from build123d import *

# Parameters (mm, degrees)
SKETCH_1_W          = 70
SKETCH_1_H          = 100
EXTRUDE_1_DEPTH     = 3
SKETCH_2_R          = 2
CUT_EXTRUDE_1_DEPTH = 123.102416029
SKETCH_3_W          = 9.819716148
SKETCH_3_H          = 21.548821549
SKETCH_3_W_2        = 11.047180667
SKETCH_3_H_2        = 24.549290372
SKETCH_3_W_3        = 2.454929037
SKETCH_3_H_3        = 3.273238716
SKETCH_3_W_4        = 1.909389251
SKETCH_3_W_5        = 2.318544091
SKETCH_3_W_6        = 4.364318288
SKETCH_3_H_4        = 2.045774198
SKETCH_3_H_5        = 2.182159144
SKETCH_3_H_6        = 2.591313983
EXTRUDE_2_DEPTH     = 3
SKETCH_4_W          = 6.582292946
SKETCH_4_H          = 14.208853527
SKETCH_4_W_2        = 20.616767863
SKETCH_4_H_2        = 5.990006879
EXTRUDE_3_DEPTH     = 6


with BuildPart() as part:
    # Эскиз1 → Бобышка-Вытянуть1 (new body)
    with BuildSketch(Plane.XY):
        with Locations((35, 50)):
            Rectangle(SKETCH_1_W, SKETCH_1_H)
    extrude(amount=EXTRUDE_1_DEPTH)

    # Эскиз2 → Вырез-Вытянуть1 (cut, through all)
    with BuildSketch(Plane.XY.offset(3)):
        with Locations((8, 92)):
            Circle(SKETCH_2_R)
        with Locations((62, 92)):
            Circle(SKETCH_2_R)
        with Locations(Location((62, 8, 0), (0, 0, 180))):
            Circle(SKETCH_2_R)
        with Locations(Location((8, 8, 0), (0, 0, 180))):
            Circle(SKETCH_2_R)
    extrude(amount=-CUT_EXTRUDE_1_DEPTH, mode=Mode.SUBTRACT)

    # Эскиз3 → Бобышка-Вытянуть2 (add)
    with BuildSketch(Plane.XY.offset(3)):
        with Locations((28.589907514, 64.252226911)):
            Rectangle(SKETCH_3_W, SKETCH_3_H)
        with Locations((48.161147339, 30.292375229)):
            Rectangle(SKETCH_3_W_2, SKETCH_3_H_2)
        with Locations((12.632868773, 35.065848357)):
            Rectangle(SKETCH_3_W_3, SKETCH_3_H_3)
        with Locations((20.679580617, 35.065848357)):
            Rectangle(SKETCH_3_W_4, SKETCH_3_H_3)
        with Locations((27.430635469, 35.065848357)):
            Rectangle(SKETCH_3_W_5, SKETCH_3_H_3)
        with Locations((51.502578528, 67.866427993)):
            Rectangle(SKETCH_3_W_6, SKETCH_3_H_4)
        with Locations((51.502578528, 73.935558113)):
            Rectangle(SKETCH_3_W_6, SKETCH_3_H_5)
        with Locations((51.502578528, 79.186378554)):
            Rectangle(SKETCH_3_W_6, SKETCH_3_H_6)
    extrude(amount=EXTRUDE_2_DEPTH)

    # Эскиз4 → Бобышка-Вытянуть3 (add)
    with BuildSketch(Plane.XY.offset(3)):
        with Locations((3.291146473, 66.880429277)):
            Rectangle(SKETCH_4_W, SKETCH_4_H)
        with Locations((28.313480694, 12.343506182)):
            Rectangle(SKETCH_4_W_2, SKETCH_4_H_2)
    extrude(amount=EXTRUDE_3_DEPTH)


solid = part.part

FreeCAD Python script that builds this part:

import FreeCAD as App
import Part
import Sketcher

doc = App.newDocument("Part")
body = doc.addObject("PartDesign::Body", "Body")

# Sketch on XY plane
sketch1 = doc.addObject("Sketcher::SketchObject", "Sketch")
body.addObject(sketch1)
sketch1.AttachmentSupport = (doc.XY_Plane, [""])
sketch1.MapMode = "FlatFace"
sketch1.addGeometry([
    Part.LineSegment(App.Vector(0, 100, 0), App.Vector(0, 0, 0)),
    Part.LineSegment(App.Vector(0, 0, 0), App.Vector(70, 0, 0)),
    Part.LineSegment(App.Vector(70, 0, 0), App.Vector(70, 100, 0)),
    Part.LineSegment(App.Vector(70, 100, 0), App.Vector(0, 100, 0)),
], False)
sketch1.addConstraint([
    Sketcher.Constraint("Coincident", 0, 2, 1, 1),
    Sketcher.Constraint("Coincident", 1, 2, 2, 1),
    Sketcher.Constraint("Coincident", 2, 2, 3, 1),
    Sketcher.Constraint("Coincident", 3, 2, 0, 1),
    Sketcher.Constraint("Vertical", 0),
    Sketcher.Constraint("Horizontal", 1),
    Sketcher.Constraint("Vertical", 2),
    Sketcher.Constraint("Horizontal", 3),
    Sketcher.Constraint("Coincident", 0, 2, -1, 1),
    Sketcher.Constraint("DistanceX", 1, 1, 1, 2, 70.0),
    Sketcher.Constraint("DistanceY", 0, 2, 0, 1, 100.0),
])
pad1 = doc.addObject("PartDesign::Pad", "Pad")
body.addObject(pad1)
pad1.Profile = sketch1
pad1.Length = 3

# Sketch on XY plane
sketch2 = doc.addObject("Sketcher::SketchObject", "Sketch001")
body.addObject(sketch2)
sketch2.AttachmentSupport = (doc.XY_Plane, [""])
sketch2.MapMode = "FlatFace"
sketch2.AttachmentOffset = App.Placement(App.Vector(0, 0, 3), App.Rotation())
sketch2.addGeometry([
    Part.Circle(App.Vector(8, 92, 0), App.Vector(0, 0, 1), 2),
    Part.Circle(App.Vector(62, 92, 0), App.Vector(0, 0, 1), 2),
    Part.Circle(App.Vector(62, 8, 0), App.Vector(0, 0, 1), 2),
    Part.Circle(App.Vector(8, 8, 0), App.Vector(0, 0, 1), 2),
], False)
sketch2.addConstraint([
    Sketcher.Constraint("Equal", 0, 1),
    Sketcher.Constraint("Equal", 1, 2),
    Sketcher.Constraint("Equal", 2, 3),
    Sketcher.Constraint("Horizontal", 0, 3, 1, 3),
    Sketcher.Constraint("Horizontal", 2, 3, 3, 3),
    Sketcher.Constraint("Vertical", 1, 3, 2, 3),
    Sketcher.Constraint("Vertical", 0, 3, 3, 3),
    Sketcher.Constraint("Diameter", 0, 4.0),
    Sketcher.Constraint("DistanceX", -1, 1, 0, 3, 8.0),
    Sketcher.Constraint("DistanceY", -1, 1, 0, 3, 92.0),
    Sketcher.Constraint("DistanceX", -1, 1, 1, 3, 62.0),
    Sketcher.Constraint("DistanceY", -1, 1, 2, 3, 8.0),
])
pocket1 = doc.addObject("PartDesign::Pocket", "Pocket")
body.addObject(pocket1)
pocket1.Profile = sketch2
pocket1.Type = "ThroughAll"

# Sketch on XY plane
sketch3 = doc.addObject("Sketcher::SketchObject", "Sketch002")
body.addObject(sketch3)
sketch3.AttachmentSupport = (doc.XY_Plane, [""])
sketch3.MapMode = "FlatFace"
sketch3.AttachmentOffset = App.Placement(App.Vector(0, 0, 3), App.Rotation())
sketch3.addGeometry([
    Part.LineSegment(App.Vector(23.7, 75, 0), App.Vector(23.7, 53.5, 0)),  # 0
    Part.LineSegment(App.Vector(23.7, 53.5, 0), App.Vector(33.5, 53.5, 0)),  # 1
    Part.LineSegment(App.Vector(33.5, 53.5, 0), App.Vector(33.5, 75, 0)),  # 2
    Part.LineSegment(App.Vector(33.5, 75, 0), App.Vector(23.7, 75, 0)),  # 3
    Part.LineSegment(App.Vector(42.6, 42.6, 0), App.Vector(42.6, 18, 0)),  # 4
    Part.LineSegment(App.Vector(42.6, 18, 0), App.Vector(53.7, 18, 0)),  # 5
    Part.LineSegment(App.Vector(53.7, 18, 0), App.Vector(53.7, 42.6, 0)),  # 6
    Part.LineSegment(App.Vector(53.7, 42.6, 0), App.Vector(42.6, 42.6, 0)),  # 7
    Part.LineSegment(App.Vector(11.4, 36.7, 0), App.Vector(11.4, 33.4, 0)),  # 8
    Part.LineSegment(App.Vector(11.4, 33.4, 0), App.Vector(13.9, 33.4, 0)),  # 9
    Part.LineSegment(App.Vector(13.9, 33.4, 0), App.Vector(13.9, 36.7, 0)),  # 10
    Part.LineSegment(App.Vector(13.9, 36.7, 0), App.Vector(11.4, 36.7, 0)),  # 11
    Part.LineSegment(App.Vector(19.7, 36.7, 0), App.Vector(19.7, 33.4, 0)),  # 12
    Part.LineSegment(App.Vector(19.7, 33.4, 0), App.Vector(21.6, 33.4, 0)),  # 13
    Part.LineSegment(App.Vector(21.6, 33.4, 0), App.Vector(21.6, 36.7, 0)),  # 14
    Part.LineSegment(App.Vector(21.6, 36.7, 0), App.Vector(19.7, 36.7, 0)),  # 15
    Part.LineSegment(App.Vector(26.3, 36.7, 0), App.Vector(26.3, 33.4, 0)),  # 16
    Part.LineSegment(App.Vector(26.3, 33.4, 0), App.Vector(28.6, 33.4, 0)),  # 17
    Part.LineSegment(App.Vector(28.6, 33.4, 0), App.Vector(28.6, 36.7, 0)),  # 18
    Part.LineSegment(App.Vector(28.6, 36.7, 0), App.Vector(26.3, 36.7, 0)),  # 19
    Part.LineSegment(App.Vector(49.3, 68.9, 0), App.Vector(49.3, 66.8, 0)),  # 20
    Part.LineSegment(App.Vector(49.3, 66.8, 0), App.Vector(53.7, 66.8, 0)),  # 21
    Part.LineSegment(App.Vector(53.7, 66.8, 0), App.Vector(53.7, 68.9, 0)),  # 22
    Part.LineSegment(App.Vector(53.7, 68.9, 0), App.Vector(49.3, 68.9, 0)),  # 23
    Part.LineSegment(App.Vector(49.3, 75, 0), App.Vector(49.3, 72.8, 0)),  # 24
    Part.LineSegment(App.Vector(49.3, 72.8, 0), App.Vector(53.7, 72.8, 0)),  # 25
    Part.LineSegment(App.Vector(53.7, 72.8, 0), App.Vector(53.7, 75, 0)),  # 26
    Part.LineSegment(App.Vector(53.7, 75, 0), App.Vector(49.3, 75, 0)),  # 27
    Part.LineSegment(App.Vector(49.3, 80.5, 0), App.Vector(49.3, 77.9, 0)),  # 28
    Part.LineSegment(App.Vector(49.3, 77.9, 0), App.Vector(53.7, 77.9, 0)),  # 29
    Part.LineSegment(App.Vector(53.7, 77.9, 0), App.Vector(53.7, 80.5, 0)),  # 30
    Part.LineSegment(App.Vector(53.7, 80.5, 0), App.Vector(49.3, 80.5, 0)),  # 31
], False)
sketch3.addConstraint([
    Sketcher.Constraint("Coincident", 0, 2, 1, 1),
    Sketcher.Constraint("Coincident", 1, 2, 2, 1),
    Sketcher.Constraint("Coincident", 2, 2, 3, 1),
    Sketcher.Constraint("Coincident", 3, 2, 0, 1),
    Sketcher.Constraint("Coincident", 4, 2, 5, 1),
    Sketcher.Constraint("Coincident", 5, 2, 6, 1),
    Sketcher.Constraint("Coincident", 6, 2, 7, 1),
    Sketcher.Constraint("Coincident", 7, 2, 4, 1),
    Sketcher.Constraint("Coincident", 8, 2, 9, 1),
    Sketcher.Constraint("Coincident", 9, 2, 10, 1),
    Sketcher.Constraint("Coincident", 10, 2, 11, 1),
    Sketcher.Constraint("Coincident", 11, 2, 8, 1),
    Sketcher.Constraint("Coincident", 12, 2, 13, 1),
    Sketcher.Constraint("Coincident", 13, 2, 14, 1),
    Sketcher.Constraint("Coincident", 14, 2, 15, 1),
    Sketcher.Constraint("Coincident", 15, 2, 12, 1),
    Sketcher.Constraint("Coincident", 16, 2, 17, 1),
    Sketcher.Constraint("Coincident", 17, 2, 18, 1),
    Sketcher.Constraint("Coincident", 18, 2, 19, 1),
    Sketcher.Constraint("Coincident", 19, 2, 16, 1),
    Sketcher.Constraint("Coincident", 20, 2, 21, 1),
    Sketcher.Constraint("Coincident", 21, 2, 22, 1),
    Sketcher.Constraint("Coincident", 22, 2, 23, 1),
    Sketcher.Constraint("Coincident", 23, 2, 20, 1),
    Sketcher.Constraint("Coincident", 24, 2, 25, 1),
    Sketcher.Constraint("Coincident", 25, 2, 26, 1),
    Sketcher.Constraint("Coincident", 26, 2, 27, 1),
    Sketcher.Constraint("Coincident", 27, 2, 24, 1),
    Sketcher.Constraint("Coincident", 28, 2, 29, 1),
    Sketcher.Constraint("Coincident", 29, 2, 30, 1),
    Sketcher.Constraint("Coincident", 30, 2, 31, 1),
    Sketcher.Constraint("Coincident", 31, 2, 28, 1),
    Sketcher.Constraint("Vertical", 0),
    Sketcher.Constraint("Horizontal", 1),
    Sketcher.Constraint("Vertical", 2),
    Sketcher.Constraint("Horizontal", 3),
    Sketcher.Constraint("Vertical", 4),
    Sketcher.Constraint("Horizontal", 5),
    Sketcher.Constraint("Vertical", 6),
    Sketcher.Constraint("Horizontal", 7),
    Sketcher.Constraint("Vertical", 8),
    Sketcher.Constraint("Horizontal", 9),
    Sketcher.Constraint("Vertical", 10),
    Sketcher.Constraint("Horizontal", 11),
    Sketcher.Constraint("Vertical", 12),
    Sketcher.Constraint("Horizontal", 13),
    Sketcher.Constraint("Vertical", 14),
    Sketcher.Constraint("Horizontal", 15),
    Sketcher.Constraint("Vertical", 16),
    Sketcher.Constraint("Horizontal", 17),
    Sketcher.Constraint("Vertical", 18),
    Sketcher.Constraint("Horizontal", 19),
    Sketcher.Constraint("Vertical", 20),
    Sketcher.Constraint("Horizontal", 21),
    Sketcher.Constraint("Vertical", 22),
    Sketcher.Constraint("Horizontal", 23),
    Sketcher.Constraint("Vertical", 24),
    Sketcher.Constraint("Horizontal", 25),
    Sketcher.Constraint("Vertical", 26),
    Sketcher.Constraint("Horizontal", 27),
    Sketcher.Constraint("Vertical", 28),
    Sketcher.Constraint("Horizontal", 29),
    Sketcher.Constraint("Vertical", 30),
    Sketcher.Constraint("Horizontal", 31),
    Sketcher.Constraint("Horizontal", 9, 2, 12, 2),
    Sketcher.Constraint("Horizontal", 11, 2, 14, 2),
    Sketcher.Constraint("Horizontal", 13, 2, 16, 2),
    Sketcher.Constraint("Horizontal", 15, 2, 18, 2),
    Sketcher.Constraint("Horizontal", 3, 2, 26, 2),
    Sketcher.Constraint("Vertical", 6, 2, 21, 2),
    Sketcher.Constraint("Vertical", 23, 2, 24, 2),
    Sketcher.Constraint("Vertical", 22, 2, 25, 2),
    Sketcher.Constraint("Vertical", 27, 2, 28, 2),
    Sketcher.Constraint("Vertical", 26, 2, 29, 2),
    Sketcher.Constraint("DistanceX", 5, 1, 5, 2, 11.047181),
    Sketcher.Constraint("DistanceX", 9, 1, 9, 2, 2.454929),
    Sketcher.Constraint("DistanceX", 13, 1, 13, 2, 1.909389),
    Sketcher.Constraint("DistanceX", 21, 1, 21, 2, 4.364318),
    Sketcher.Constraint("DistanceY", 0, 2, 0, 1, 21.548822),
    Sketcher.Constraint("DistanceY", 4, 2, 4, 1, 24.54929),
    Sketcher.Constraint("DistanceY", 8, 2, 8, 1, 3.273239),
    Sketcher.Constraint("DistanceY", 24, 2, 24, 1, 2.182159),
    Sketcher.Constraint("DistanceY", 4, 2, 8, 2, 15.411499),
    Sketcher.Constraint("DistanceY", 1, 2, 22, 2, 15.411499),
    Sketcher.Constraint("DistanceX", 1, 1, 1, 2, 9.819716),
    Sketcher.Constraint("DistanceX", 17, 1, 17, 2, 2.318544),
    Sketcher.Constraint("DistanceY", 20, 2, 20, 1, 2.045774),
    Sketcher.Constraint("DistanceY", 28, 2, 28, 1, 2.591314),
    Sketcher.Constraint("DistanceX", -1, 1, 0, 2, 23.680049),
    Sketcher.Constraint("DistanceY", -1, 1, 4, 2, 18.01773),
    Sketcher.Constraint("DistanceX", -1, 1, 20, 2, 49.320419),
    Sketcher.Constraint("DistanceY", -1, 1, 20, 2, 66.843541),
    Sketcher.Constraint("DistanceY", -1, 1, 28, 2, 77.890722),
    Sketcher.Constraint("DistanceX", 8, 2, 1, 2, 22.094361),
    Sketcher.Constraint("DistanceX", 8, 2, 12, 2, 8.319482),
    Sketcher.Constraint("DistanceX", 13, 2, 16, 2, 4.637088),
])
pad2 = doc.addObject("PartDesign::Pad", "Pad001")
body.addObject(pad2)
pad2.Profile = sketch3
pad2.Length = 3

# Sketch on XY plane
sketch4 = doc.addObject("Sketcher::SketchObject", "Sketch003")
body.addObject(sketch4)
sketch4.AttachmentSupport = (doc.XY_Plane, [""])
sketch4.MapMode = "FlatFace"
sketch4.AttachmentOffset = App.Placement(App.Vector(0, 0, 3), App.Rotation())
sketch4.addGeometry([
    Part.LineSegment(App.Vector(0, 74, 0), App.Vector(0, 60, 0)),  # 0
    Part.LineSegment(App.Vector(0, 60, 0), App.Vector(7, 60, 0)),  # 1
    Part.LineSegment(App.Vector(7, 60, 0), App.Vector(7, 74, 0)),  # 2
    Part.LineSegment(App.Vector(7, 74, 0), App.Vector(0, 74, 0)),  # 3
    Part.LineSegment(App.Vector(18, 15, 0), App.Vector(18, 9, 0)),  # 4
    Part.LineSegment(App.Vector(18, 9, 0), App.Vector(39, 9, 0)),  # 5
    Part.LineSegment(App.Vector(39, 9, 0), App.Vector(39, 15, 0)),  # 6
    Part.LineSegment(App.Vector(39, 15, 0), App.Vector(18, 15, 0)),  # 7
], False)
sketch4.addConstraint([
    Sketcher.Constraint("Coincident", 0, 2, 1, 1),
    Sketcher.Constraint("Coincident", 1, 2, 2, 1),
    Sketcher.Constraint("Coincident", 2, 2, 3, 1),
    Sketcher.Constraint("Coincident", 3, 2, 0, 1),
    Sketcher.Constraint("Coincident", 4, 2, 5, 1),
    Sketcher.Constraint("Coincident", 5, 2, 6, 1),
    Sketcher.Constraint("Coincident", 6, 2, 7, 1),
    Sketcher.Constraint("Coincident", 7, 2, 4, 1),
    Sketcher.Constraint("Vertical", 0),
    Sketcher.Constraint("Horizontal", 1),
    Sketcher.Constraint("Vertical", 2),
    Sketcher.Constraint("Horizontal", 3),
    Sketcher.Constraint("Vertical", 4),
    Sketcher.Constraint("Horizontal", 5),
    Sketcher.Constraint("Vertical", 6),
    Sketcher.Constraint("Horizontal", 7),
    Sketcher.Constraint("PointOnObject", 0, 2, -2),
    Sketcher.Constraint("DistanceY", 4, 2, 1, 2, 50.4275),
    Sketcher.Constraint("DistanceX", 1, 1, 1, 2, 6.582293),
    Sketcher.Constraint("DistanceX", 5, 1, 5, 2, 20.616768),
    Sketcher.Constraint("DistanceY", 0, 2, 0, 1, 14.208854),
    Sketcher.Constraint("DistanceY", 4, 2, 4, 1, 5.990007),
    Sketcher.Constraint("DistanceY", -1, 1, 6, 2, 15.33851),
    Sketcher.Constraint("DistanceX", 1, 2, 5, 2, 32.039572),
])
pad3 = doc.addObject("PartDesign::Pad", "Pad002")
body.addObject(pad3)
pad3.Profile = sketch4
pad3.Length = 6

doc.recompute()
